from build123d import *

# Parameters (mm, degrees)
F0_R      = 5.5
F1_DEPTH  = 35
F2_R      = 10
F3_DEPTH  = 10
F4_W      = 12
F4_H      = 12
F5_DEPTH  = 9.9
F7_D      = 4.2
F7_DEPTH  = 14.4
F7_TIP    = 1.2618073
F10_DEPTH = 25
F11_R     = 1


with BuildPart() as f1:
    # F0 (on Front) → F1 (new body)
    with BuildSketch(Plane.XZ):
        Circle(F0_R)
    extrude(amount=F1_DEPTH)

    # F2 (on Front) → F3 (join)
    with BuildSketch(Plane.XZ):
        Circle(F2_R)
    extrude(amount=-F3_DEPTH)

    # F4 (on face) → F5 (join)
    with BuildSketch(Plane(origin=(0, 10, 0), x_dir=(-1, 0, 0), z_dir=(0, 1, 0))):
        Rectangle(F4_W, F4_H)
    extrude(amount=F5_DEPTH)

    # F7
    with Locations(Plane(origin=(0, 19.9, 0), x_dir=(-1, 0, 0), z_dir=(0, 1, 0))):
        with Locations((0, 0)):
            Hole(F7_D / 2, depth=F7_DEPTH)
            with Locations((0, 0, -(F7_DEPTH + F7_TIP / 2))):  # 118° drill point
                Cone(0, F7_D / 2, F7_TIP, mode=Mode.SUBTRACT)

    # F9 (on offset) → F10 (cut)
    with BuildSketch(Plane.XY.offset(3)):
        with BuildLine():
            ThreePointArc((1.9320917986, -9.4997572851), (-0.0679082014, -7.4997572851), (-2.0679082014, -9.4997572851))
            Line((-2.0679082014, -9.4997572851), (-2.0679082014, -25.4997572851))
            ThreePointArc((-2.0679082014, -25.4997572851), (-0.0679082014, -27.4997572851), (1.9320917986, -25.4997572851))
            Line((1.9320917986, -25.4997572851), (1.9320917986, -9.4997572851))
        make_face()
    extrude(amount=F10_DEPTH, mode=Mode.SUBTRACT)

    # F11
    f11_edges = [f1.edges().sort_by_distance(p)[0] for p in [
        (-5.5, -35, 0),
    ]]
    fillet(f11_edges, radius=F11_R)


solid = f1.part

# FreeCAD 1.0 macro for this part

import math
import FreeCAD as App
import Part
import Sketcher
from FreeCAD import Vector


def edges_at(feature, points):
    """Names of the edges that pass closest to the given points."""
    edges = feature.Shape.Edges
    near = lambda p: min(range(len(edges)), key=lambda i: edges[i].distToShape(Part.Vertex(*p))[0])
    return sorted({f"Edge{near(p) + 1}" for p in points})

doc = App.newDocument("Part")
body = doc.addObject("PartDesign::Body", "Body")

sketch1 = body.newObject("Sketcher::SketchObject", "Sketch")
sketch1.AttachmentSupport = (doc.getObject("XZ_Plane"), [""])
sketch1.MapMode = "FlatFace"
sketch1.addGeometry(Part.Circle(Vector(0, 0, 0), Vector(0, 0, 1), 6), False)
sketch1.addConstraint([
    Sketcher.Constraint("Coincident", 0, 3, -1, 1),
    Sketcher.Constraint("Diameter", 0, 11.0),
])
pad1 = body.newObject("PartDesign::Pad", "Pad")
pad1.Profile = sketch1
pad1.Length = 35

sketch2 = body.newObject("Sketcher::SketchObject", "Sketch001")
sketch2.AttachmentSupport = (doc.getObject("XZ_Plane"), [""])
sketch2.MapMode = "FlatFace"
sketch2.addGeometry(Part.Circle(Vector(0, 0, 0), Vector(0, 0, 1), 10), False)
sketch2.addConstraint([
    Sketcher.Constraint("Coincident", 0, 3, -1, 1),
    Sketcher.Constraint("Diameter", 0, 20.0),
])
pad2 = body.newObject("PartDesign::Pad", "Pad001")
pad2.Profile = sketch2
pad2.Length = 10
pad2.Reversed = True

sketch3 = body.newObject("Sketcher::SketchObject", "Sketch002")
sketch3.AttachmentSupport = (doc.getObject("XZ_Plane"), [""])
sketch3.MapMode = "FlatFace"
sketch3.AttachmentOffset = App.Placement(Vector(0, 0, -10), App.Rotation())
sketch3.addGeometry([
    Part.LineSegment(Vector(6, 6, 0), Vector(6, -6, 0)),
    Part.LineSegment(Vector(6, -6, 0), Vector(-6, -6, 0)),
    Part.LineSegment(Vector(-6, -6, 0), Vector(-6, 6, 0)),
    Part.LineSegment(Vector(-6, 6, 0), Vector(6, 6, 0)),
], False)
sketch3.addConstraint([
    Sketcher.Constraint("Coincident", 0, 2, 1, 1),
    Sketcher.Constraint("Coincident", 1, 2, 2, 1),
    Sketcher.Constraint("Coincident", 2, 2, 3, 1),
    Sketcher.Constraint("Coincident", 3, 2, 0, 1),
    Sketcher.Constraint("Vertical", 0),
    Sketcher.Constraint("Horizontal", 1),
    Sketcher.Constraint("Vertical", 2),
    Sketcher.Constraint("Horizontal", 3),
    Sketcher.Constraint("Symmetric", 0, 2, 2, 2, -1, 1),
    Sketcher.Constraint("Equal", 3, 0),
    Sketcher.Constraint("DistanceX", 1, 2, 1, 1, 12.0),
])
pad3 = body.newObject("PartDesign::Pad", "Pad002")
pad3.Profile = sketch3
pad3.Length = 9.9
pad3.Reversed = True

sketch4 = body.newObject("Sketcher::SketchObject", "Sketch003")
sketch4.AttachmentSupport = (doc.getObject("XZ_Plane"), [""])
sketch4.MapMode = "FlatFace"
sketch4.AttachmentOffset = App.Placement(Vector(0, 0, -19.9), App.Rotation())
sketch4.addGeometry(Part.Circle(Vector(0, 0, 0), Vector(0, 0, 1), 2.1), False)
sketch4.addConstraint([
    Sketcher.Constraint("Coincident", 0, 3, -1, 1),
    Sketcher.Constraint("Diameter", 0, 4.2),
])
doc.recompute()
hole = body.newObject("PartDesign::Hole", "Hole")
hole.Profile = sketch4
hole.ThreadType = "None"
hole.Diameter = 4.2
hole.DepthType = "Dimension"
hole.Depth = 14.4
hole.DrillPoint = "Angled"
hole.DrillPointAngle = 118
hole.Reversed = True

sketch5 = body.newObject("Sketcher::SketchObject", "Sketch004")
sketch5.AttachmentSupport = (doc.getObject("XY_Plane"), [""])
sketch5.MapMode = "FlatFace"
sketch5.AttachmentOffset = App.Placement(Vector(0, 0, 3), App.Rotation())
sketch5.addGeometry([
    Part.ArcOfCircle(Part.Circle(Vector(-0.1, -9.5, 0), Vector(0, 0, 1), 2), math.radians(0), math.radians(180)),
    Part.LineSegment(Vector(-2.1, -9.5, 0), Vector(-2.1, -25.5, 0)),
    Part.ArcOfCircle(Part.Circle(Vector(-0.1, -25.5, 0), Vector(0, 0, 1), 2), math.radians(180), math.radians(360)),
    Part.LineSegment(Vector(1.9, -25.5, 0), Vector(1.9, -9.5, 0)),
], False)
sketch5.addConstraint([
    Sketcher.Constraint("Tangent", 0, 2, 1, 1),
    Sketcher.Constraint("Tangent", 1, 2, 2, 1),
    Sketcher.Constraint("Tangent", 2, 2, 3, 1),
    Sketcher.Constraint("Tangent", 3, 2, 0, 1),
    Sketcher.Constraint("Vertical", 1),
    Sketcher.Constraint("Vertical", 3),
    Sketcher.Constraint("Radius", 0, 2.0),
    Sketcher.Constraint("DistanceY", 1, 2, 1, 1, 16.0),
    Sketcher.Constraint("DistanceX", 0, 3, -1, 1, 0.067908),
    Sketcher.Constraint("DistanceY", 0, 3, -1, 1, 9.499757),
])
pocket1 = body.newObject("PartDesign::Pocket", "Pocket")
pocket1.Profile = sketch5
pocket1.Length = 25
pocket1.Reversed = True
doc.recompute()

fillet = body.newObject("PartDesign::Fillet", "Fillet")
fillet.Base = (pocket1, edges_at(pocket1, [(-5.5, -35, 0)]))
fillet.Radius = 1

doc.recompute()
